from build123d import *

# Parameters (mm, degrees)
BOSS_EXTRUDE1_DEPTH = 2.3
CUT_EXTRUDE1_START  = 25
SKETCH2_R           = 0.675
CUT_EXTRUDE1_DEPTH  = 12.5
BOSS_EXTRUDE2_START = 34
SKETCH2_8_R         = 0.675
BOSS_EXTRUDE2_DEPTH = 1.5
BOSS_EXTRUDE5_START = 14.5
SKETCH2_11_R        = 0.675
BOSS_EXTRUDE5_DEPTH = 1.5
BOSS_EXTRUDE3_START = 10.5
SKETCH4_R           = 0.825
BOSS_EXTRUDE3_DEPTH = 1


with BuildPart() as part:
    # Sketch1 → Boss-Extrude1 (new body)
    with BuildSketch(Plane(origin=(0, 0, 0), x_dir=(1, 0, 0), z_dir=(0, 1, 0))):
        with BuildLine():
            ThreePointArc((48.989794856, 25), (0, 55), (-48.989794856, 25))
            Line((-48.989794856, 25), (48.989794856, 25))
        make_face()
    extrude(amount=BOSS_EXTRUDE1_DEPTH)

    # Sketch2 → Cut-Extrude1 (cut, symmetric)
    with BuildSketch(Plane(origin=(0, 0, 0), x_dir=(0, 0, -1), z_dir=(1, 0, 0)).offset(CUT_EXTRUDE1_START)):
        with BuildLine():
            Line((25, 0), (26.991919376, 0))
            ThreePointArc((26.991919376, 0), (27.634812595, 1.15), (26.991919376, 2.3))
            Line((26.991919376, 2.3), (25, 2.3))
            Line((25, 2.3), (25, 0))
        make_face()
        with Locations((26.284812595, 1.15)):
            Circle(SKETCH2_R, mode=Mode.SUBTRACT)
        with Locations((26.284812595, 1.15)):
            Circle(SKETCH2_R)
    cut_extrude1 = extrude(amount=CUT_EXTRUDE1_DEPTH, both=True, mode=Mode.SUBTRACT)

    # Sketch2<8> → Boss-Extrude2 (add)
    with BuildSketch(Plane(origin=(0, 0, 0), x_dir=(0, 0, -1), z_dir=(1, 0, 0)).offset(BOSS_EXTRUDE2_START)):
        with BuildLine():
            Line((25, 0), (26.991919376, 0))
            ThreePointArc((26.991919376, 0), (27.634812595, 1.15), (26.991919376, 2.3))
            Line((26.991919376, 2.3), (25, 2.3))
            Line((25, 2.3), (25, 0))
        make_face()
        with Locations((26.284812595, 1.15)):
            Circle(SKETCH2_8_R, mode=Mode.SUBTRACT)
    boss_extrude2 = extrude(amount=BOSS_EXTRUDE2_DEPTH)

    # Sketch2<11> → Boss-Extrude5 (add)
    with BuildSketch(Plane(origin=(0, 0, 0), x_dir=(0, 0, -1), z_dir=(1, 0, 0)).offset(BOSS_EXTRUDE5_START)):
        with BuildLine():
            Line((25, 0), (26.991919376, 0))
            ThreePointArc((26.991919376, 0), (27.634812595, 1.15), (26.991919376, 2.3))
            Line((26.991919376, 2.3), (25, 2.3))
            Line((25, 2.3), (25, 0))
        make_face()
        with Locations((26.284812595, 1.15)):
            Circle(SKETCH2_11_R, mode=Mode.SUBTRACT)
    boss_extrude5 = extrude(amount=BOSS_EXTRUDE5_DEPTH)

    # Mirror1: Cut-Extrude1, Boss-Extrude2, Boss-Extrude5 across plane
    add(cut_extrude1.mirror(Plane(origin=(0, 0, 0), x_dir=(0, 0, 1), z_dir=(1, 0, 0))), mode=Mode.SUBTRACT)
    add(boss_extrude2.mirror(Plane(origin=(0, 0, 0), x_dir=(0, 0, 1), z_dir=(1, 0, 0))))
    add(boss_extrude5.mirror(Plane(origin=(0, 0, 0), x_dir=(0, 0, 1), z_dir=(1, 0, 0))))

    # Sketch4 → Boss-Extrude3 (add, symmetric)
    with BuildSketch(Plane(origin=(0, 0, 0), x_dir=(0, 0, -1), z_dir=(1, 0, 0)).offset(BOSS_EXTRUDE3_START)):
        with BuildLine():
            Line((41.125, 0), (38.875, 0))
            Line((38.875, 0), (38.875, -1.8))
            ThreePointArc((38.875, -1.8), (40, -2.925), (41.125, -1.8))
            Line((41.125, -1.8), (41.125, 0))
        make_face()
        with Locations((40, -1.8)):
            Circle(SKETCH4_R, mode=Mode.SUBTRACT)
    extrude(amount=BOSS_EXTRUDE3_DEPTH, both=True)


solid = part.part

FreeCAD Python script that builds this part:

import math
import FreeCAD as App
import Part
import Sketcher
Q = App.Units.Quantity

doc = App.newDocument("Part")
params = doc.addObject("Spreadsheet::Sheet", "Params")
for row, (alias, value) in enumerate([
    ("sketch1_radius", "55 mm"),
    ("pad1_length", "2.3 mm"),
    ("sketch2_radius", "1.35 mm"),
    ("sketch2_width", "2.3 mm"),
    ("pocket1_length", "25 mm"),
    ("sketch3_diameter", "1.35 mm"),
    ("sketch3_radius", "1.35 mm"),
    ("sketch3_width", "2.3 mm"),
    ("pad2_length", "1.5 mm"),
    ("sketch4_diameter", "1.35 mm"),
    ("sketch4_radius", "1.35 mm"),
    ("sketch4_width", "2.3 mm"),
    ("pad3_length", "1.5 mm"),
    ("sketch5_diameter", "1.65 mm"),
    ("sketch5_width", "1.8 mm"),
    ("pad4_length", "2 mm"),
], start=1):
    params.set(f"A{row}", alias)
    params.set(f"B{row}", "=" + value)
    params.setAlias(f"B{row}", alias)

body = doc.addObject("PartDesign::Body", "Body")

# Sketch on XZ plane
sketch1 = body.newObject("Sketcher::SketchObject", "Sketch")
sketch1.AttachmentSupport = (doc.getObject("XZ_Plane"), [""])
sketch1.MapMode = "FlatFace"
sketch1.addGeometry([
    Part.ArcOfCircle(Part.Circle(App.Vector(0, 0, 0), App.Vector(0, 0, 1), 55), math.radians(-153), math.radians(-27)),
    Part.LineSegment(App.Vector(-49, -25, 0), App.Vector(49, -25, 0)),
], False)
sketch1.addConstraint([
    Sketcher.Constraint("Coincident", 0, 1, 1, 1),
    Sketcher.Constraint("Coincident", 1, 2, 0, 2),
    Sketcher.Constraint("Horizontal", 1),
    Sketcher.Constraint("Coincident", 0, 3, -1, 1),
    Sketcher.Constraint("Radius", 0, Q("55 mm")),
    Sketcher.Constraint("DistanceY", 0, 1, -1, 1, Q("25 mm")),
])
sketch1.setExpression("Constraints[4]", "Params.sketch1_radius")
pad1 = body.newObject("PartDesign::Pad", "Pad")
pad1.Profile = sketch1
pad1.setExpression("Length", "Params.pad1_length")
pad1.Reversed = True

# Sketch on YZ plane
sketch2 = body.newObject("Sketcher::SketchObject", "Sketch001")
sketch2.AttachmentSupport = (doc.getObject("YZ_Plane"), [""])
sketch2.MapMode = "FlatFace"
sketch2.AttachmentOffset = App.Placement(App.Vector(0, 0, 25), App.Rotation())
sketch2.addGeometry([
    Part.LineSegment(App.Vector(0, -25, 0), App.Vector(0, -27, 0)),
    Part.ArcOfCircle(Part.Circle(App.Vector(1.1, -26.3, 0), App.Vector(0, 0, 1), 1.4), math.radians(-148), math.radians(-32)),
    Part.LineSegment(App.Vector(2.3, -27, 0), App.Vector(2.3, -25, 0)),
    Part.LineSegment(App.Vector(2.3, -25, 0), App.Vector(0, -25, 0)),
], False)
sketch2.addConstraint([
    Sketcher.Constraint("Coincident", 0, 2, 1, 1),
    Sketcher.Constraint("Coincident", 1, 2, 2, 1),
    Sketcher.Constraint("Coincident", 2, 2, 3, 1),
    Sketcher.Constraint("Coincident", 3, 2, 0, 1),
    Sketcher.Constraint("Vertical", 0),
    Sketcher.Constraint("Vertical", 2),
    Sketcher.Constraint("Horizontal", 3),
    Sketcher.Constraint("PointOnObject", 0, 2, -2),
    Sketcher.Constraint("Horizontal", 0, 2, 1, 2),
    Sketcher.Constraint("Radius", 1, Q("1.35 mm")),
    Sketcher.Constraint("DistanceX", 3, 2, 3, 1, Q("2.3 mm")),
    Sketcher.Constraint("DistanceY", 2, 2, -1, 1, Q("25 mm")),
    Sketcher.Constraint("DistanceY", 0, 2, 0, 1, Q("1.991919 mm")),
])
sketch2.setExpression("Constraints[9]", "Params.sketch2_radius")
sketch2.setExpression("Constraints[10]", "Params.sketch2_width")
pocket1 = body.newObject("PartDesign::Pocket", "Pocket")
pocket1.Profile = sketch2
pocket1.setExpression("Length", "Params.pocket1_length")
pocket1.Midplane = True

# Sketch on YZ plane
sketch3 = body.newObject("Sketcher::SketchObject", "Sketch002")
sketch3.AttachmentSupport = (doc.getObject("YZ_Plane"), [""])
sketch3.MapMode = "FlatFace"
sketch3.AttachmentOffset = App.Placement(App.Vector(0, 0, 34), App.Rotation())
sketch3.addGeometry([
    Part.LineSegment(App.Vector(0, -25, 0), App.Vector(0, -27, 0)),  # 0
    Part.ArcOfCircle(Part.Circle(App.Vector(1.1, -26.3, 0), App.Vector(0, 0, 1), 1.4), math.radians(-148), math.radians(-32)),  # 1
    Part.LineSegment(App.Vector(2.3, -27, 0), App.Vector(2.3, -25, 0)),  # 2
    Part.LineSegment(App.Vector(2.3, -25, 0), App.Vector(0, -25, 0)),  # 3
    Part.Circle(App.Vector(1.1, -26.3, 0), App.Vector(0, 0, 1), 0.7),  # 4
], False)
sketch3.addConstraint([
    Sketcher.Constraint("Coincident", 0, 2, 1, 1),
    Sketcher.Constraint("Coincident", 1, 2, 2, 1),
    Sketcher.Constraint("Coincident", 2, 2, 3, 1),
    Sketcher.Constraint("Coincident", 3, 2, 0, 1),
    Sketcher.Constraint("Vertical", 0),
    Sketcher.Constraint("Vertical", 2),
    Sketcher.Constraint("Horizontal", 3),
    Sketcher.Constraint("Coincident", 4, 3, 1, 3),
    Sketcher.Constraint("PointOnObject", 0, 2, -2),
    Sketcher.Constraint("Horizontal", 0, 2, 1, 2),
    Sketcher.Constraint("Diameter", 4, Q("1.35 mm")),
    Sketcher.Constraint("Radius", 1, Q("1.35 mm")),
    Sketcher.Constraint("DistanceX", 3, 2, 3, 1, Q("2.3 mm")),
    Sketcher.Constraint("DistanceY", 2, 2, -1, 1, Q("25 mm")),
    Sketcher.Constraint("DistanceY", 0, 2, 0, 1, Q("1.991919 mm")),
])
sketch3.setExpression("Constraints[10]", "Params.sketch3_diameter")
sketch3.setExpression("Constraints[11]", "Params.sketch3_radius")
sketch3.setExpression("Constraints[12]", "Params.sketch3_width")
pad2 = body.newObject("PartDesign::Pad", "Pad001")
pad2.Profile = sketch3
pad2.setExpression("Length", "Params.pad2_length")

# Sketch on YZ plane
sketch4 = body.newObject("Sketcher::SketchObject", "Sketch003")
sketch4.AttachmentSupport = (doc.getObject("YZ_Plane"), [""])
sketch4.MapMode = "FlatFace"
sketch4.AttachmentOffset = App.Placement(App.Vector(0, 0, 14.5), App.Rotation())
sketch4.addGeometry([
    Part.LineSegment(App.Vector(0, -25, 0), App.Vector(0, -27, 0)),  # 0
    Part.ArcOfCircle(Part.Circle(App.Vector(1.1, -26.3, 0), App.Vector(0, 0, 1), 1.4), math.radians(-148), math.radians(-32)),  # 1
    Part.LineSegment(App.Vector(2.3, -27, 0), App.Vector(2.3, -25, 0)),  # 2
    Part.LineSegment(App.Vector(2.3, -25, 0), App.Vector(0, -25, 0)),  # 3
    Part.Circle(App.Vector(1.1, -26.3, 0), App.Vector(0, 0, 1), 0.7),  # 4
], False)
sketch4.addConstraint([
    Sketcher.Constraint("Coincident", 0, 2, 1, 1),
    Sketcher.Constraint("Coincident", 1, 2, 2, 1),
    Sketcher.Constraint("Coincident", 2, 2, 3, 1),
    Sketcher.Constraint("Coincident", 3, 2, 0, 1),
    Sketcher.Constraint("Vertical", 0),
    Sketcher.Constraint("Vertical", 2),
    Sketcher.Constraint("Horizontal", 3),
    Sketcher.Constraint("Coincident", 4, 3, 1, 3),
    Sketcher.Constraint("PointOnObject", 0, 2, -2),
    Sketcher.Constraint("Horizontal", 0, 2, 1, 2),
    Sketcher.Constraint("Diameter", 4, Q("1.35 mm")),
    Sketcher.Constraint("Radius", 1, Q("1.35 mm")),
    Sketcher.Constraint("DistanceX", 3, 2, 3, 1, Q("2.3 mm")),
    Sketcher.Constraint("DistanceY", 2, 2, -1, 1, Q("25 mm")),
    Sketcher.Constraint("DistanceY", 0, 2, 0, 1, Q("1.991919 mm")),
])
sketch4.setExpression("Constraints[10]", "Params.sketch4_diameter")
sketch4.setExpression("Constraints[11]", "Params.sketch4_radius")
sketch4.setExpression("Constraints[12]", "Params.sketch4_width")
pad3 = body.newObject("PartDesign::Pad", "Pad002")
pad3.Profile = sketch4
pad3.setExpression("Length", "Params.pad3_length")
doc.recompute()

mirrored = body.newObject("PartDesign::Mirrored", "Mirrored")
mirrored.Originals = [pocket1, pad2, pad3]
mirrored.MirrorPlane = (doc.getObject("YZ_Plane"), [""])
body.Tip = mirrored

# Sketch on YZ plane
sketch5 = body.newObject("Sketcher::SketchObject", "Sketch004")
sketch5.AttachmentSupport = (doc.getObject("YZ_Plane"), [""])
sketch5.MapMode = "FlatFace"
sketch5.AttachmentOffset = App.Placement(App.Vector(0, 0, 10.5), App.Rotation())
sketch5.addGeometry([
    Part.LineSegment(App.Vector(0, -41.1, 0), App.Vector(0, -38.9, 0)),  # 0
    Part.LineSegment(App.Vector(0, -38.9, 0), App.Vector(-1.8, -38.9, 0)),  # 1
    Part.ArcOfCircle(Part.Circle(App.Vector(-1.8, -40, 0), App.Vector(0, 0, 1), 1.1), math.radians(90), math.radians(270)),  # 2
    Part.LineSegment(App.Vector(-1.8, -41.1, 0), App.Vector(0, -41.1, 0)),  # 3
    Part.Circle(App.Vector(-1.8, -40, 0), App.Vector(0, 0, 1), 0.8),  # 4
], False)
sketch5.addConstraint([
    Sketcher.Constraint("Coincident", 0, 2, 1, 1),
    Sketcher.Constraint("Tangent", 1, 2, 2, 1),
    Sketcher.Constraint("Tangent", 2, 2, 3, 1),
    Sketcher.Constraint("Coincident", 3, 2, 0, 1),
    Sketcher.Constraint("Vertical", 0),
    Sketcher.Constraint("Horizontal", 1),
    Sketcher.Constraint("Horizontal", 3),
    Sketcher.Constraint("Coincident", 4, 3, 2, 3),
    Sketcher.Constraint("PointOnObject", 0, 2, -2),
    Sketcher.Constraint("Diameter", 4, Q("1.65 mm")),
    Sketcher.Constraint("DistanceX", 1, 2, 1, 1, Q("1.8 mm")),
    Sketcher.Constraint("DistanceY", 2, 3, -1, 1, Q("40 mm")),
    Sketcher.Constraint("Radius", 2, Q("1.125 mm")),
])
sketch5.setExpression("Constraints[9]", "Params.sketch5_diameter")
sketch5.setExpression("Constraints[10]", "Params.sketch5_width")
pad4 = body.newObject("PartDesign::Pad", "Pad003")
pad4.Profile = sketch5
pad4.setExpression("Length", "Params.pad4_length")
pad4.Midplane = True

doc.recompute()
